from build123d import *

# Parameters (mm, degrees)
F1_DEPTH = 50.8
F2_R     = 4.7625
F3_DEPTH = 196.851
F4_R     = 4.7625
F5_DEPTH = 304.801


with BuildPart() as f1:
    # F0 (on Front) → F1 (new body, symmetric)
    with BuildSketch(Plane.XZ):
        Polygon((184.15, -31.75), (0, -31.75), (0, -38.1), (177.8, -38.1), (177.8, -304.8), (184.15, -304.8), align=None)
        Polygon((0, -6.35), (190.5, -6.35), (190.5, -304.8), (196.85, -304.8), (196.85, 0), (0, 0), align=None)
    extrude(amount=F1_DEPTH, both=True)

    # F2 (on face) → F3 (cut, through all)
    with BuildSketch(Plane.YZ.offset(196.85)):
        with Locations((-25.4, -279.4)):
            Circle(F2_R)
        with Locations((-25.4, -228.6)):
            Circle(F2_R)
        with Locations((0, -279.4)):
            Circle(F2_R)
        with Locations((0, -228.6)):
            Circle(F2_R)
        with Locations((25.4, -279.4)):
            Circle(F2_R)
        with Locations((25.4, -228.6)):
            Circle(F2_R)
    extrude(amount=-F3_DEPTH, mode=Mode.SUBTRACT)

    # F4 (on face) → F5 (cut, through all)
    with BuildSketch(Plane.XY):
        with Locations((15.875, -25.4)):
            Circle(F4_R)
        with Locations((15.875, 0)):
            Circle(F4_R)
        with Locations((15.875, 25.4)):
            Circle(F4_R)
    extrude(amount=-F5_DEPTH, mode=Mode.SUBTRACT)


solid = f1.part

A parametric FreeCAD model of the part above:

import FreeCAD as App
import Part
import Sketcher
Q = App.Units.Quantity


def add_polygon(sketch, points):
    """Adds a closed chain of lines whose ends are joined by coincident constraints."""
    first, n = sketch.GeometryCount, len(points)
    for a, b in zip(points, points[1:] + points[:1]):
        sketch.addGeometry(Part.LineSegment(App.Vector(*a, 0), App.Vector(*b, 0)), False)
    for i in range(n):
        sketch.addConstraint(Sketcher.Constraint("Coincident", first + i, 2, first + (i + 1) % n, 1))

doc = App.newDocument("Part")
body = doc.addObject("PartDesign::Body", "Body")
body.AllowCompound = True

# Sketch on XZ plane
sketch1 = doc.addObject("Sketcher::SketchObject", "Sketch")
body.addObject(sketch1)
sketch1.AttachmentSupport = (doc.XZ_Plane, [""])
sketch1.MapMode = "FlatFace"
add_polygon(sketch1, [(184.15, -31.75), (0, -31.75), (0, -38.1), (177.8, -38.1), (177.8, -304.8), (184.15, -304.8)])  # lines 0-5
add_polygon(sketch1, [(0, -6.35), (190.5, -6.35), (190.5, -304.8), (196.85, -304.8), (196.85, 0), (0, 0)])  # lines 6-11
sketch1.addConstraint([
    Sketcher.Constraint("Horizontal", 0),
    Sketcher.Constraint("Vertical", 1),
    Sketcher.Constraint("Horizontal", 2),
    Sketcher.Constraint("Vertical", 3),
    Sketcher.Constraint("Horizontal", 4),
    Sketcher.Constraint("Vertical", 5),
    Sketcher.Constraint("Horizontal", 6),
    Sketcher.Constraint("Vertical", 7),
    Sketcher.Constraint("Horizontal", 8),
    Sketcher.Constraint("Vertical", 9),
    Sketcher.Constraint("Horizontal", 10),
    Sketcher.Constraint("Vertical", 11),
    Sketcher.Constraint("Coincident", 10, 2, -1, 1),
    Sketcher.Constraint("PointOnObject", 0, 2, -2),
    Sketcher.Constraint("Horizontal", 4, 2, 7, 2),
    Sketcher.Constraint("Equal", 4, 8),
    Sketcher.Constraint("Equal", 8, 1),
    Sketcher.Constraint("Equal", 1, 11),
    Sketcher.Constraint("DistanceX", 2, 1, 2, 2, Q("7 in")),
    Sketcher.Constraint("DistanceY", 9, 1, 9, 2, Q("12 in")),
    Sketcher.Constraint("DistanceX", 6, 1, 6, 2, Q("7.5 in")),
    Sketcher.Constraint("DistanceY", 3, 2, 3, 1, Q("10.5 in")),
    Sketcher.Constraint("DistanceY", 5, 2, 6, 2, Q("1 in")),
])
pad1 = doc.addObject("PartDesign::Pad", "Pad")
body.addObject(pad1)
pad1.Profile = sketch1
pad1.Length = Q("4 in")
pad1.Midplane = True

# Sketch on YZ plane
sketch2 = doc.addObject("Sketcher::SketchObject", "Sketch001")
body.addObject(sketch2)
sketch2.AttachmentSupport = (doc.YZ_Plane, [""])
sketch2.MapMode = "FlatFace"
sketch2.AttachmentOffset = App.Placement(App.Vector(0, 0, 7.75 * 25.4), App.Rotation())
sketch2.addGeometry([
    Part.Circle(App.Vector(-25.4, -279.4, 0), App.Vector(0, 0, 1), 4.7625),  # 0
    Part.Circle(App.Vector(-25.4, -228.6, 0), App.Vector(0, 0, 1), 4.7625),  # 1
    Part.Circle(App.Vector(0, -279.4, 0), App.Vector(0, 0, 1), 4.7625),  # 2
    Part.Circle(App.Vector(0, -228.6, 0), App.Vector(0, 0, 1), 4.7625),  # 3
    Part.Circle(App.Vector(25.4, -279.4, 0), App.Vector(0, 0, 1), 4.7625),  # 4
    Part.Circle(App.Vector(25.4, -228.6, 0), App.Vector(0, 0, 1), 4.7625),  # 5
], False)
sketch2.addConstraint([
    Sketcher.Constraint("Equal", 0, 1),
    Sketcher.Constraint("Equal", 1, 2),
    Sketcher.Constraint("Equal", 2, 3),
    Sketcher.Constraint("Equal", 3, 4),
    Sketcher.Constraint("Equal", 4, 5),
    Sketcher.Constraint("Symmetric", 0, 3, 4, 3, -2),
    Sketcher.Constraint("Symmetric", 1, 3, 5, 3, -2),
    Sketcher.Constraint("PointOnObject", 2, 3, -2),
    Sketcher.Constraint("PointOnObject", 3, 3, -2),
    Sketcher.Constraint("Horizontal", 0, 3, 2, 3),
    Sketcher.Constraint("Horizontal", 1, 3, 3, 3),
    Sketcher.Constraint("Vertical", 0, 3, 1, 3),
    Sketcher.Constraint("Diameter", 0, Q("0.375 in")),
    Sketcher.Constraint("DistanceX", 0, 3, -1, 1, Q("1 in")),
    Sketcher.Constraint("DistanceY", 0, 3, -1, 1, Q("11 in")),
    Sketcher.Constraint("DistanceY", 1, 3, -1, 1, Q("9 in")),
])
pocket1 = doc.addObject("PartDesign::Pocket", "Pocket")
body.addObject(pocket1)
pocket1.Profile = sketch2
pocket1.Type = "ThroughAll"

# Sketch on XY plane
sketch3 = doc.addObject("Sketcher::SketchObject", "Sketch002")
body.addObject(sketch3)
sketch3.AttachmentSupport = (doc.XY_Plane, [""])
sketch3.MapMode = "FlatFace"
sketch3.addGeometry([
    Part.Circle(App.Vector(15.875, -25.4, 0), App.Vector(0, 0, 1), 4.7625),
    Part.Circle(App.Vector(15.875, 0, 0), App.Vector(0, 0, 1), 4.7625),
    Part.Circle(App.Vector(15.875, 25.4, 0), App.Vector(0, 0, 1), 4.7625),
], False)
sketch3.addConstraint([
    Sketcher.Constraint("Equal", 0, 1),
    Sketcher.Constraint("Equal", 1, 2),
    Sketcher.Constraint("Symmetric", 0, 3, 2, 3, -1),
    Sketcher.Constraint("PointOnObject", 1, 3, -1),
    Sketcher.Constraint("Vertical", 0, 3, 1, 3),
    Sketcher.Constraint("Diameter", 0, Q("0.375 in")),
    Sketcher.Constraint("DistanceY", 0, 3, -1, 1, Q("1 in")),
    Sketcher.Constraint("DistanceX", -1, 1, 0, 3, Q("0.625 in")),
])
pocket2 = doc.addObject("PartDesign::Pocket", "Pocket001")
body.addObject(pocket2)
pocket2.Profile = sketch3
pocket2.Type = "ThroughAll"

doc.recompute()
